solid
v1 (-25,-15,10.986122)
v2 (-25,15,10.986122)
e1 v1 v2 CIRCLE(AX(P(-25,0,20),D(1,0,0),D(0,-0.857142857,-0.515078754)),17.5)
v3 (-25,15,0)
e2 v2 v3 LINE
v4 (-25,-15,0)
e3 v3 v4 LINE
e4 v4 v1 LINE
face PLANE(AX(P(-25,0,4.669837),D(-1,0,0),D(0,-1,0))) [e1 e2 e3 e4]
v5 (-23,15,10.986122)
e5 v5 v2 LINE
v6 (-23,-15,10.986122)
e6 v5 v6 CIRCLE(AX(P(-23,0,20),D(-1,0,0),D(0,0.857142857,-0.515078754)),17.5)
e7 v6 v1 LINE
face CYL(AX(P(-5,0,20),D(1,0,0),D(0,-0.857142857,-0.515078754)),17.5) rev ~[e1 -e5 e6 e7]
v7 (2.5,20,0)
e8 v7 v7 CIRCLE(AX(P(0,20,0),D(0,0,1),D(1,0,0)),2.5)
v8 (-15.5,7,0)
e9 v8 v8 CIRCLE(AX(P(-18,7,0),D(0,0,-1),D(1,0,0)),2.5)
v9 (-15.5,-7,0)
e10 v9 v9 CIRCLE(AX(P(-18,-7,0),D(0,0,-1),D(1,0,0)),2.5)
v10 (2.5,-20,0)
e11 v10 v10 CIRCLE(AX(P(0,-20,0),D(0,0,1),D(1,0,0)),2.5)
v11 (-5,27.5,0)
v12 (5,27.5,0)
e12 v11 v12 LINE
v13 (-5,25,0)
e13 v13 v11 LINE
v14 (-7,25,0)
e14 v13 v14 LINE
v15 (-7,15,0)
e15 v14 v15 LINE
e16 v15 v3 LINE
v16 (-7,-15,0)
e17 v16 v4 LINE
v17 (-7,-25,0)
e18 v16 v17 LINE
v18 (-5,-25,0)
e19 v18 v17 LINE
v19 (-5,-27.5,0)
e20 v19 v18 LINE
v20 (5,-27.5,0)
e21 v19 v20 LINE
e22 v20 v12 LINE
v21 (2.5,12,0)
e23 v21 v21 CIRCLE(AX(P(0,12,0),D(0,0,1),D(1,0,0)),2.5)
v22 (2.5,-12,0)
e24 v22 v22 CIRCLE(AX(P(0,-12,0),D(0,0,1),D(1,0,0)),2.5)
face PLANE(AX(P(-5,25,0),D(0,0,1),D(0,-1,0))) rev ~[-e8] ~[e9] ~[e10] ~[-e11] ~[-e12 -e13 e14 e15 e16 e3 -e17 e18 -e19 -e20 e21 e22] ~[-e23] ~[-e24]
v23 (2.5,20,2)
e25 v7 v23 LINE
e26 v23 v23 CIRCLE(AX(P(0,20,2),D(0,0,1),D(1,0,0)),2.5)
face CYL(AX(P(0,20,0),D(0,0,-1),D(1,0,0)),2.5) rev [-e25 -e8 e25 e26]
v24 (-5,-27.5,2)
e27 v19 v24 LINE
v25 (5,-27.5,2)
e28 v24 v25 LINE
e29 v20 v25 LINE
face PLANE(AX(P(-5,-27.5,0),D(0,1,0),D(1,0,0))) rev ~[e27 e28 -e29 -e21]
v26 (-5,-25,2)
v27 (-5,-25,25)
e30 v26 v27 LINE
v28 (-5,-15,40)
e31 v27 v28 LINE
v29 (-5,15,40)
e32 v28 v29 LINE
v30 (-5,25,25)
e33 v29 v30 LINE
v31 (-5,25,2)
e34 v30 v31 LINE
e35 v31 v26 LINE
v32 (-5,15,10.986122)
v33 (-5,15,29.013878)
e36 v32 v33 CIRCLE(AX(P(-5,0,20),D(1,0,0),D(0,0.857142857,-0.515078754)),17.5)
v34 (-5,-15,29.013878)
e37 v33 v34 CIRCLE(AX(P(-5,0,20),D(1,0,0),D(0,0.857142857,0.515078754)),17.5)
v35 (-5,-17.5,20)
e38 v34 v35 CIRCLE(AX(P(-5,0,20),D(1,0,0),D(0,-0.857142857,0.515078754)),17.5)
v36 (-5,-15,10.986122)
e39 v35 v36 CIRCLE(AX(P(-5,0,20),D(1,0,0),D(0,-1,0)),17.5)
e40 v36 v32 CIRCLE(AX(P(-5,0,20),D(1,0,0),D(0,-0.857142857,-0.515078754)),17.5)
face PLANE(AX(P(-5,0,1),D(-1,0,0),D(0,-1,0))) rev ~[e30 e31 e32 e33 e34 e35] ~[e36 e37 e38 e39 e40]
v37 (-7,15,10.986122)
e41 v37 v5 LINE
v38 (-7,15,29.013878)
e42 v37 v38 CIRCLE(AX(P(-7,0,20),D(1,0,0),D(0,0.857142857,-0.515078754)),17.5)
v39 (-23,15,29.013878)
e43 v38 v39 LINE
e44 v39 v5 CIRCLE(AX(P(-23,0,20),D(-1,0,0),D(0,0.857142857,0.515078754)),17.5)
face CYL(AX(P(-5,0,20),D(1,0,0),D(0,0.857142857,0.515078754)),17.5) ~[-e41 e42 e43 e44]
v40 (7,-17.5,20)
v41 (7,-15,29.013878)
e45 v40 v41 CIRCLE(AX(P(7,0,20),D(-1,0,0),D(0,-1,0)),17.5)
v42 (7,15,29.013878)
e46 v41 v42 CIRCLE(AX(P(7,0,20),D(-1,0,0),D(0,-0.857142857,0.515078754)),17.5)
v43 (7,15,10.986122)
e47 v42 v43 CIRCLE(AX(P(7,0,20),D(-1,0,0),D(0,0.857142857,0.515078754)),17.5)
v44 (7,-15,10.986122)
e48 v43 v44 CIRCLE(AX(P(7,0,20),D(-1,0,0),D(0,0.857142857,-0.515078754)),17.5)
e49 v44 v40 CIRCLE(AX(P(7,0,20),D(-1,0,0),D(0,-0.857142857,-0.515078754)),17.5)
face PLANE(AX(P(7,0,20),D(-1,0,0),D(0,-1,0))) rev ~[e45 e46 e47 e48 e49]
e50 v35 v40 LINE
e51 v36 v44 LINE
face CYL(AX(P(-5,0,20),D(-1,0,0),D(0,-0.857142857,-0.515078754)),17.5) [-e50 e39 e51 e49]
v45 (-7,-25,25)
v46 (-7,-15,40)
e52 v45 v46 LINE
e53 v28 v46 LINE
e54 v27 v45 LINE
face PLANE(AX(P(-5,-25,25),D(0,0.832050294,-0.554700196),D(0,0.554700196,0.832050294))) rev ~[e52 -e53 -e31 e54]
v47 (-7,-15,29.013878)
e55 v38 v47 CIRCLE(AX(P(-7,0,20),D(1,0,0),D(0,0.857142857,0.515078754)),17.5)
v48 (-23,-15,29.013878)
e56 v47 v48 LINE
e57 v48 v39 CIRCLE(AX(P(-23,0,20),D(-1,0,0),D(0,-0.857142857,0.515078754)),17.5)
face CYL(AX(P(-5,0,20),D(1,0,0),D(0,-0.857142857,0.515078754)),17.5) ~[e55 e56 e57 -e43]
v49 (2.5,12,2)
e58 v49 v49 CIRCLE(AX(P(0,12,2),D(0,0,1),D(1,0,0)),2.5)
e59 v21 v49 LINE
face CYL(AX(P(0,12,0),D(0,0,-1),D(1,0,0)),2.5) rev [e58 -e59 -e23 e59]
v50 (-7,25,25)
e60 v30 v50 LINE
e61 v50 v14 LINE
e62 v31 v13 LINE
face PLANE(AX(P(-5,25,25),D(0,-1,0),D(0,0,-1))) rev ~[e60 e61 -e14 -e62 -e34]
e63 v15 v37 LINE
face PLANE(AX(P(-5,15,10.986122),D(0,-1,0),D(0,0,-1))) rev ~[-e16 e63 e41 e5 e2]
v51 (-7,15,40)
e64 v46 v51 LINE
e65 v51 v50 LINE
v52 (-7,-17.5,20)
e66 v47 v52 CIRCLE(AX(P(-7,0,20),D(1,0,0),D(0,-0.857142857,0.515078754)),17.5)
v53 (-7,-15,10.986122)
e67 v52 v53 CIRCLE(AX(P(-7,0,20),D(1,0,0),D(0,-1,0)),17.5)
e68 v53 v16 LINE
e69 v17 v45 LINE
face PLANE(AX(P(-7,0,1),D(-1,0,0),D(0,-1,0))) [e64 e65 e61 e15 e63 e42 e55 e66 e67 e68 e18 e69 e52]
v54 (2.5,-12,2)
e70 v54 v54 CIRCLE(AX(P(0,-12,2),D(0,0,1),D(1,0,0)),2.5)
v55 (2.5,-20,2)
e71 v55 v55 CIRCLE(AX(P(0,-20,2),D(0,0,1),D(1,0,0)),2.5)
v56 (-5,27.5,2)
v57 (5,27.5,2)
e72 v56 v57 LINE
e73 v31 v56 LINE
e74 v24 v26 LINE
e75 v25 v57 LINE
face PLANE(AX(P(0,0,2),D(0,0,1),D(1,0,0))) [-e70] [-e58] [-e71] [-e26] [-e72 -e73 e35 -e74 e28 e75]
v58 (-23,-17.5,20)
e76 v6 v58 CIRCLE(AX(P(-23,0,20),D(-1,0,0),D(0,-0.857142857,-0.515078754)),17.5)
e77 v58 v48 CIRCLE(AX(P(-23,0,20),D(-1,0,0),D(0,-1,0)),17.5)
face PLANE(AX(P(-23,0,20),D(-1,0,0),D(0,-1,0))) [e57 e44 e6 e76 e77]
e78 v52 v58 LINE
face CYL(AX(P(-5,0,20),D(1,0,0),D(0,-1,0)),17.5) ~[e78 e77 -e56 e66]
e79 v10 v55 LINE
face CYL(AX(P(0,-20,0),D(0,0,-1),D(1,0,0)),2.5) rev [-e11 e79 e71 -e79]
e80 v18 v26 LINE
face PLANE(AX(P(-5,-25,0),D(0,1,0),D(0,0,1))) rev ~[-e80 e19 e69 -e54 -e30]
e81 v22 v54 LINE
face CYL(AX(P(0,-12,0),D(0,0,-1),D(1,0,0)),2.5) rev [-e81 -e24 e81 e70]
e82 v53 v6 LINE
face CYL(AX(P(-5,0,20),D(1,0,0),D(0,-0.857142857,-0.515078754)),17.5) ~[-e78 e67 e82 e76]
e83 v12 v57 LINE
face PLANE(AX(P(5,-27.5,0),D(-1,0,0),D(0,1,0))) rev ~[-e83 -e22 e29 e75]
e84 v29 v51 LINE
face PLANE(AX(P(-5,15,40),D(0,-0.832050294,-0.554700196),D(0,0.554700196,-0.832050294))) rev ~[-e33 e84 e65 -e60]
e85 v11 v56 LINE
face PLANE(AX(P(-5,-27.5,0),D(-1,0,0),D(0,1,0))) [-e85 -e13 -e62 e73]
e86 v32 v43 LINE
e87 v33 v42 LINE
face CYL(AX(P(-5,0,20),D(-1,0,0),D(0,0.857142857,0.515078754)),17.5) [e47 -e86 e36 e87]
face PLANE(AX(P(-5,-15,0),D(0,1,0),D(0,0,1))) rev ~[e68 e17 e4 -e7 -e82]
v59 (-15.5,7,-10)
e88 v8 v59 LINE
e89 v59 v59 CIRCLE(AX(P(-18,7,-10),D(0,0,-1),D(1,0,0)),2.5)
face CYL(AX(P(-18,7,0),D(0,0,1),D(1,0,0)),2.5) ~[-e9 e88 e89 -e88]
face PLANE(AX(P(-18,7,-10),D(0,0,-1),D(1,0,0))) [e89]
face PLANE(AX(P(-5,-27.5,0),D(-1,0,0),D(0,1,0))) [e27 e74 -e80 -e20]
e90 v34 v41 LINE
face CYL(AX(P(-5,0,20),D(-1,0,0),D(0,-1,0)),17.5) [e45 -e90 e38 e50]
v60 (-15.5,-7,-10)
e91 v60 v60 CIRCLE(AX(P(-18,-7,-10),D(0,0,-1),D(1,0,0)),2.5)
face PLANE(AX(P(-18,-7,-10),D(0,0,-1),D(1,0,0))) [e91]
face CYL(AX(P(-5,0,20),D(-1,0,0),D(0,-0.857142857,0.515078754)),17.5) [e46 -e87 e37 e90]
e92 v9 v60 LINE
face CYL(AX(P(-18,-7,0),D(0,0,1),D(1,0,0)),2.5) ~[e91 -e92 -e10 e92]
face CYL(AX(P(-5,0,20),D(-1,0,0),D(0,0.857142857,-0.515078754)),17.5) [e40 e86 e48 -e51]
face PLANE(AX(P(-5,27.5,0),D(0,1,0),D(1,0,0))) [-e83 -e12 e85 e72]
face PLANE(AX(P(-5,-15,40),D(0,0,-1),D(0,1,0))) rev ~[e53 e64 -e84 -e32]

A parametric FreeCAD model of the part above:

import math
import FreeCAD as App
import Part
import Sketcher
from FreeCAD import Vector

doc = App.newDocument("Part")
body = doc.addObject("PartDesign::Body", "Body")

# Sketch on XY plane
sketch1 = body.newObject("Sketcher::SketchObject", "Sketch")
sketch1.AttachmentSupport = (doc.getObject("XY_Plane"), [""])
sketch1.MapMode = "FlatFace"
sketch1.addGeometry(Part.LineSegment(Vector(-5, 27.5, 0), Vector(-5, -27.5, 0)), False)
sketch1.addGeometry(Part.LineSegment(Vector(-5, -27.5, 0), Vector(5, -27.5, 0)), False)
sketch1.addGeometry(Part.LineSegment(Vector(5, -27.5, 0), Vector(5, 27.5, 0)), False)
sketch1.addGeometry(Part.LineSegment(Vector(5, 27.5, 0), Vector(-5, 27.5, 0)), False)
sketch1.addGeometry(Part.Circle(Vector(0, -20, 0), Vector(0, 0, 1), 2.5), False)
sketch1.addGeometry(Part.Circle(Vector(0, -12, 0), Vector(0, 0, 1), 2.5), False)
sketch1.addGeometry(Part.Circle(Vector(0, 12, 0), Vector(0, 0, 1), 2.5), False)
sketch1.addGeometry(Part.Circle(Vector(0, 20, 0), Vector(0, 0, 1), 2.5), False)
sketch1.addConstraint(Sketcher.Constraint("Coincident", 0, 2, 1, 1))
sketch1.addConstraint(Sketcher.Constraint("Coincident", 1, 2, 2, 1))
sketch1.addConstraint(Sketcher.Constraint("Coincident", 2, 2, 3, 1))
sketch1.addConstraint(Sketcher.Constraint("Coincident", 3, 2, 0, 1))
sketch1.addConstraint(Sketcher.Constraint("Vertical", 0))
sketch1.addConstraint(Sketcher.Constraint("Horizontal", 1))
sketch1.addConstraint(Sketcher.Constraint("Vertical", 2))
sketch1.addConstraint(Sketcher.Constraint("Horizontal", 3))
sketch1.addConstraint(Sketcher.Constraint("Equal", 4, 5))
sketch1.addConstraint(Sketcher.Constraint("Equal", 5, 6))
sketch1.addConstraint(Sketcher.Constraint("Equal", 6, 7))
sketch1.addConstraint(Sketcher.Constraint("Symmetric", 5, 3, 6, 3, -1, 1))
sketch1.addConstraint(Sketcher.Constraint("Symmetric", 4, 3, 7, 3, -1, 1))
sketch1.addConstraint(Sketcher.Constraint("Symmetric", 0, 2, 2, 2, -1, 1))
sketch1.addConstraint(Sketcher.Constraint("PointOnObject", 4, 3, -2))
sketch1.addConstraint(Sketcher.Constraint("PointOnObject", 5, 3, -2))
sketch1.addConstraint(Sketcher.Constraint("Diameter", 4, 5.0))
sketch1.addConstraint(Sketcher.Constraint("DistanceX", 1, 1, 1, 2, 10.0))
sketch1.addConstraint(Sketcher.Constraint("DistanceY", 0, 2, 0, 1, 55.0))
sketch1.addConstraint(Sketcher.Constraint("DistanceY", 4, 3, -1, 1, 20.0))
sketch1.addConstraint(Sketcher.Constraint("DistanceY", 5, 3, -1, 1, 12.0))
pad1 = body.newObject("PartDesign::Pad", "Pad")
pad1.Profile = sketch1
pad1.Length = 2

# Sketch on YZ plane
sketch2 = body.newObject("Sketcher::SketchObject", "Sketch001")
sketch2.AttachmentSupport = (doc.getObject("YZ_Plane"), [""])
sketch2.MapMode = "FlatFace"
sketch2.AttachmentOffset = App.Placement(Vector(0, 0, -5), App.Rotation())
sketch2.addGeometry(Part.LineSegment(Vector(25, 0, 0), Vector(-25, 0, 0)), False)
sketch2.addGeometry(Part.LineSegment(Vector(-25, 0, 0), Vector(-25, 25, 0)), False)
sketch2.addGeometry(Part.LineSegment(Vector(-25, 25, 0), Vector(-15, 40, 0)), False)
sketch2.addGeometry(Part.LineSegment(Vector(-15, 40, 0), Vector(15, 40, 0)), False)
sketch2.addGeometry(Part.LineSegment(Vector(15, 40, 0), Vector(25, 25, 0)), False)
sketch2.addGeometry(Part.LineSegment(Vector(25, 25, 0), Vector(25, 0, 0)), False)
sketch2.addGeometry(Part.ArcOfCircle(Part.Circle(Vector(0, 20, 0), Vector(0, 0, 1), 18), math.radians(149), math.radians(180)), False)
sketch2.addGeometry(Part.ArcOfCircle(Part.Circle(Vector(0, 20, 0), Vector(0, 0, 1), 18), math.radians(180), math.radians(211)), False)
sketch2.addGeometry(Part.ArcOfCircle(Part.Circle(Vector(0, 20, 0), Vector(0, 0, 1), 18), math.radians(-149), math.radians(-31)), False)
sketch2.addGeometry(Part.ArcOfCircle(Part.Circle(Vector(0, 20, 0), Vector(0, 0, 1), 18), math.radians(-31), math.radians(31)), False)
sketch2.addGeometry(Part.ArcOfCircle(Part.Circle(Vector(0, 20, 0), Vector(0, 0, 1), 18), math.radians(31), math.radians(149)), False)
sketch2.addConstraint(Sketcher.Constraint("Coincident", 0, 2, 1, 1))
sketch2.addConstraint(Sketcher.Constraint("Coincident", 1, 2, 2, 1))
sketch2.addConstraint(Sketcher.Constraint("Coincident", 2, 2, 3, 1))
sketch2.addConstraint(Sketcher.Constraint("Coincident", 3, 2, 4, 1))
sketch2.addConstraint(Sketcher.Constraint("Coincident", 4, 2, 5, 1))
sketch2.addConstraint(Sketcher.Constraint("Coincident", 5, 2, 0, 1))
sketch2.addConstraint(Sketcher.Constraint("Tangent", 6, 2, 7, 1))
sketch2.addConstraint(Sketcher.Constraint("Tangent", 7, 2, 8, 1))
sketch2.addConstraint(Sketcher.Constraint("Tangent", 8, 2, 9, 1))
sketch2.addConstraint(Sketcher.Constraint("Tangent", 9, 2, 10, 1))
sketch2.addConstraint(Sketcher.Constraint("Tangent", 10, 2, 6, 1))
sketch2.addConstraint(Sketcher.Constraint("Horizontal", 0))
sketch2.addConstraint(Sketcher.Constraint("Vertical", 1))
sketch2.addConstraint(Sketcher.Constraint("Horizontal", 3))
sketch2.addConstraint(Sketcher.Constraint("Vertical", 5))
sketch2.addConstraint(Sketcher.Constraint("Coincident", 8, 3, 6, 3))
sketch2.addConstraint(Sketcher.Constraint("Symmetric", 0, 2, 5, 2, -1, 1))
sketch2.addConstraint(Sketcher.Constraint("Symmetric", 7, 2, 8, 2, -2))
sketch2.addConstraint(Sketcher.Constraint("Horizontal", 1, 2, 4, 2))
sketch2.addConstraint(Sketcher.Constraint("Horizontal", 10, 3, 6, 2))
sketch2.addConstraint(Sketcher.Constraint("Horizontal", 9, 2, 10, 2))
sketch2.addConstraint(Sketcher.Constraint("Vertical", 2, 2, 7, 2))
sketch2.addConstraint(Sketcher.Constraint("Vertical", 3, 2, 8, 2))
sketch2.addConstraint(Sketcher.Constraint("Vertical", 8, 2, 9, 2))
sketch2.addConstraint(Sketcher.Constraint("Radius", 6, 17.5))
sketch2.addConstraint(Sketcher.Constraint("DistanceX", 0, 2, 0, 1, 50.0))
sketch2.addConstraint(Sketcher.Constraint("DistanceX", 3, 1, 3, 2, 30.0))
sketch2.addConstraint(Sketcher.Constraint("DistanceY", 1, 1, 1, 2, 25.0))
sketch2.addConstraint(Sketcher.Constraint("DistanceY", -1, 1, 6, 3, 20.0))
sketch2.addConstraint(Sketcher.Constraint("DistanceY", -1, 1, 2, 2, 40.0))
pad2 = body.newObject("PartDesign::Pad", "Pad001")
pad2.Profile = sketch2
pad2.Length = 2
pad2.Reversed = True

# Sketch on YZ plane
sketch3 = body.newObject("Sketcher::SketchObject", "Sketch002")
sketch3.AttachmentSupport = (doc.getObject("YZ_Plane"), [""])
sketch3.MapMode = "FlatFace"
sketch3.AttachmentOffset = App.Placement(Vector(0, 0, -5), App.Rotation())
sketch3.addGeometry(Part.ArcOfCircle(Part.Circle(Vector(0, 20, 0), Vector(0, 0, 1), 18), math.radians(-149), math.radians(-31)), False)
sketch3.addGeometry(Part.ArcOfCircle(Part.Circle(Vector(0, 20, 0), Vector(0, 0, 1), 18), math.radians(180), math.radians(211)), False)
sketch3.addGeometry(Part.ArcOfCircle(Part.Circle(Vector(0, 20, 0), Vector(0, 0, 1), 18), math.radians(149), math.radians(180)), False)
sketch3.addGeometry(Part.ArcOfCircle(Part.Circle(Vector(0, 20, 0), Vector(0, 0, 1), 18), math.radians(31), math.radians(149)), False)
sketch3.addGeometry(Part.ArcOfCircle(Part.Circle(Vector(0, 20, 0), Vector(0, 0, 1), 18), math.radians(-31), math.radians(31)), False)
sketch3.addConstraint(Sketcher.Constraint("Tangent", 0, 1, 1, 2))
sketch3.addConstraint(Sketcher.Constraint("Tangent", 1, 1, 2, 2))
sketch3.addConstraint(Sketcher.Constraint("Tangent", 2, 1, 3, 2))
sketch3.addConstraint(Sketcher.Constraint("Tangent", 3, 1, 4, 2))
sketch3.addConstraint(Sketcher.Constraint("Tangent", 4, 1, 0, 2))
sketch3.addConstraint(Sketcher.Constraint("Coincident", 2, 3, 0, 3))
sketch3.addConstraint(Sketcher.Constraint("Symmetric", 2, 1, 3, 1, -2))
sketch3.addConstraint(Sketcher.Constraint("Horizontal", 4, 3, 1, 1))
sketch3.addConstraint(Sketcher.Constraint("Horizontal", 0, 1, 4, 1))
sketch3.addConstraint(Sketcher.Constraint("Vertical", 0, 1, 2, 1))
sketch3.addConstraint(Sketcher.Constraint("Radius", 0, 17.5))
sketch3.addConstraint(Sketcher.Constraint("DistanceY", -1, 1, 0, 3, 20.0))
sketch3.addConstraint(Sketcher.Constraint("DistanceX", 0, 1, -1, 1, 15.0))
pad3 = body.newObject("PartDesign::Pad", "Pad002")
pad3.Profile = sketch3
pad3.Type = "TwoLengths"
pad3.Length = 12
pad3.Length2 = 18

# Sketch on YZ plane
sketch4 = body.newObject("Sketcher::SketchObject", "Sketch003")
sketch4.AttachmentSupport = (doc.getObject("YZ_Plane"), [""])
sketch4.MapMode = "FlatFace"
sketch4.AttachmentOffset = App.Placement(Vector(0, 0, -5), App.Rotation())
sketch4.addGeometry(Part.LineSegment(Vector(15, 11, 0), Vector(15, 0, 0)), False)
sketch4.addGeometry(Part.LineSegment(Vector(15, 0, 0), Vector(-15, 0, 0)), False)
sketch4.addGeometry(Part.LineSegment(Vector(-15, 0, 0), Vector(-15, 11, 0)), False)
sketch4.addGeometry(Part.ArcOfCircle(Part.Circle(Vector(0, 20, 0), Vector(0, 0, 1), 18), math.radians(-149), math.radians(-31)), False)
sketch4.addConstraint(Sketcher.Constraint("Coincident", 0, 2, 1, 1))
sketch4.addConstraint(Sketcher.Constraint("Coincident", 1, 2, 2, 1))
sketch4.addConstraint(Sketcher.Constraint("Coincident", 2, 2, 3, 1))
sketch4.addConstraint(Sketcher.Constraint("Coincident", 3, 2, 0, 1))
sketch4.addConstraint(Sketcher.Constraint("Vertical", 0))
sketch4.addConstraint(Sketcher.Constraint("Horizontal", 1))
sketch4.addConstraint(Sketcher.Constraint("Vertical", 2))
sketch4.addConstraint(Sketcher.Constraint("Symmetric", 0, 2, 1, 2, -1, 1))
sketch4.addConstraint(Sketcher.Constraint("PointOnObject", 3, 3, -2))
sketch4.addConstraint(Sketcher.Constraint("Radius", 3, 17.5))
sketch4.addConstraint(Sketcher.Constraint("DistanceX", 1, 2, 1, 1, 30.0))
sketch4.addConstraint(Sketcher.Constraint("DistanceY", -1, 1, 3, 3, 20.0))
pad4 = body.newObject("PartDesign::Pad", "Pad003")
pad4.Profile = sketch4
pad4.Length = 20
pad4.Reversed = True

# Sketch on XY plane
sketch5 = body.newObject("Sketcher::SketchObject", "Sketch004")
sketch5.AttachmentSupport = (doc.getObject("XY_Plane"), [""])
sketch5.MapMode = "FlatFace"
sketch5.addGeometry(Part.Circle(Vector(-18, 7, 0), Vector(0, 0, 1), 2.5), False)
sketch5.addGeometry(Part.Circle(Vector(-18, -7, 0), Vector(0, 0, 1), 2.5), False)
sketch5.addConstraint(Sketcher.Constraint("Equal", 0, 1))
sketch5.addConstraint(Sketcher.Constraint("Symmetric", 0, 3, 1, 3, -1))
sketch5.addConstraint(Sketcher.Constraint("Diameter", 0, 5.0))
sketch5.addConstraint(Sketcher.Constraint("DistanceX", 0, 3, -1, 1, 18.0))
sketch5.addConstraint(Sketcher.Constraint("DistanceY", -1, 1, 0, 3, 7.0))
pad5 = body.newObject("PartDesign::Pad", "Pad004")
pad5.Profile = sketch5
pad5.Length = 10
pad5.Reversed = True

doc.recompute()
